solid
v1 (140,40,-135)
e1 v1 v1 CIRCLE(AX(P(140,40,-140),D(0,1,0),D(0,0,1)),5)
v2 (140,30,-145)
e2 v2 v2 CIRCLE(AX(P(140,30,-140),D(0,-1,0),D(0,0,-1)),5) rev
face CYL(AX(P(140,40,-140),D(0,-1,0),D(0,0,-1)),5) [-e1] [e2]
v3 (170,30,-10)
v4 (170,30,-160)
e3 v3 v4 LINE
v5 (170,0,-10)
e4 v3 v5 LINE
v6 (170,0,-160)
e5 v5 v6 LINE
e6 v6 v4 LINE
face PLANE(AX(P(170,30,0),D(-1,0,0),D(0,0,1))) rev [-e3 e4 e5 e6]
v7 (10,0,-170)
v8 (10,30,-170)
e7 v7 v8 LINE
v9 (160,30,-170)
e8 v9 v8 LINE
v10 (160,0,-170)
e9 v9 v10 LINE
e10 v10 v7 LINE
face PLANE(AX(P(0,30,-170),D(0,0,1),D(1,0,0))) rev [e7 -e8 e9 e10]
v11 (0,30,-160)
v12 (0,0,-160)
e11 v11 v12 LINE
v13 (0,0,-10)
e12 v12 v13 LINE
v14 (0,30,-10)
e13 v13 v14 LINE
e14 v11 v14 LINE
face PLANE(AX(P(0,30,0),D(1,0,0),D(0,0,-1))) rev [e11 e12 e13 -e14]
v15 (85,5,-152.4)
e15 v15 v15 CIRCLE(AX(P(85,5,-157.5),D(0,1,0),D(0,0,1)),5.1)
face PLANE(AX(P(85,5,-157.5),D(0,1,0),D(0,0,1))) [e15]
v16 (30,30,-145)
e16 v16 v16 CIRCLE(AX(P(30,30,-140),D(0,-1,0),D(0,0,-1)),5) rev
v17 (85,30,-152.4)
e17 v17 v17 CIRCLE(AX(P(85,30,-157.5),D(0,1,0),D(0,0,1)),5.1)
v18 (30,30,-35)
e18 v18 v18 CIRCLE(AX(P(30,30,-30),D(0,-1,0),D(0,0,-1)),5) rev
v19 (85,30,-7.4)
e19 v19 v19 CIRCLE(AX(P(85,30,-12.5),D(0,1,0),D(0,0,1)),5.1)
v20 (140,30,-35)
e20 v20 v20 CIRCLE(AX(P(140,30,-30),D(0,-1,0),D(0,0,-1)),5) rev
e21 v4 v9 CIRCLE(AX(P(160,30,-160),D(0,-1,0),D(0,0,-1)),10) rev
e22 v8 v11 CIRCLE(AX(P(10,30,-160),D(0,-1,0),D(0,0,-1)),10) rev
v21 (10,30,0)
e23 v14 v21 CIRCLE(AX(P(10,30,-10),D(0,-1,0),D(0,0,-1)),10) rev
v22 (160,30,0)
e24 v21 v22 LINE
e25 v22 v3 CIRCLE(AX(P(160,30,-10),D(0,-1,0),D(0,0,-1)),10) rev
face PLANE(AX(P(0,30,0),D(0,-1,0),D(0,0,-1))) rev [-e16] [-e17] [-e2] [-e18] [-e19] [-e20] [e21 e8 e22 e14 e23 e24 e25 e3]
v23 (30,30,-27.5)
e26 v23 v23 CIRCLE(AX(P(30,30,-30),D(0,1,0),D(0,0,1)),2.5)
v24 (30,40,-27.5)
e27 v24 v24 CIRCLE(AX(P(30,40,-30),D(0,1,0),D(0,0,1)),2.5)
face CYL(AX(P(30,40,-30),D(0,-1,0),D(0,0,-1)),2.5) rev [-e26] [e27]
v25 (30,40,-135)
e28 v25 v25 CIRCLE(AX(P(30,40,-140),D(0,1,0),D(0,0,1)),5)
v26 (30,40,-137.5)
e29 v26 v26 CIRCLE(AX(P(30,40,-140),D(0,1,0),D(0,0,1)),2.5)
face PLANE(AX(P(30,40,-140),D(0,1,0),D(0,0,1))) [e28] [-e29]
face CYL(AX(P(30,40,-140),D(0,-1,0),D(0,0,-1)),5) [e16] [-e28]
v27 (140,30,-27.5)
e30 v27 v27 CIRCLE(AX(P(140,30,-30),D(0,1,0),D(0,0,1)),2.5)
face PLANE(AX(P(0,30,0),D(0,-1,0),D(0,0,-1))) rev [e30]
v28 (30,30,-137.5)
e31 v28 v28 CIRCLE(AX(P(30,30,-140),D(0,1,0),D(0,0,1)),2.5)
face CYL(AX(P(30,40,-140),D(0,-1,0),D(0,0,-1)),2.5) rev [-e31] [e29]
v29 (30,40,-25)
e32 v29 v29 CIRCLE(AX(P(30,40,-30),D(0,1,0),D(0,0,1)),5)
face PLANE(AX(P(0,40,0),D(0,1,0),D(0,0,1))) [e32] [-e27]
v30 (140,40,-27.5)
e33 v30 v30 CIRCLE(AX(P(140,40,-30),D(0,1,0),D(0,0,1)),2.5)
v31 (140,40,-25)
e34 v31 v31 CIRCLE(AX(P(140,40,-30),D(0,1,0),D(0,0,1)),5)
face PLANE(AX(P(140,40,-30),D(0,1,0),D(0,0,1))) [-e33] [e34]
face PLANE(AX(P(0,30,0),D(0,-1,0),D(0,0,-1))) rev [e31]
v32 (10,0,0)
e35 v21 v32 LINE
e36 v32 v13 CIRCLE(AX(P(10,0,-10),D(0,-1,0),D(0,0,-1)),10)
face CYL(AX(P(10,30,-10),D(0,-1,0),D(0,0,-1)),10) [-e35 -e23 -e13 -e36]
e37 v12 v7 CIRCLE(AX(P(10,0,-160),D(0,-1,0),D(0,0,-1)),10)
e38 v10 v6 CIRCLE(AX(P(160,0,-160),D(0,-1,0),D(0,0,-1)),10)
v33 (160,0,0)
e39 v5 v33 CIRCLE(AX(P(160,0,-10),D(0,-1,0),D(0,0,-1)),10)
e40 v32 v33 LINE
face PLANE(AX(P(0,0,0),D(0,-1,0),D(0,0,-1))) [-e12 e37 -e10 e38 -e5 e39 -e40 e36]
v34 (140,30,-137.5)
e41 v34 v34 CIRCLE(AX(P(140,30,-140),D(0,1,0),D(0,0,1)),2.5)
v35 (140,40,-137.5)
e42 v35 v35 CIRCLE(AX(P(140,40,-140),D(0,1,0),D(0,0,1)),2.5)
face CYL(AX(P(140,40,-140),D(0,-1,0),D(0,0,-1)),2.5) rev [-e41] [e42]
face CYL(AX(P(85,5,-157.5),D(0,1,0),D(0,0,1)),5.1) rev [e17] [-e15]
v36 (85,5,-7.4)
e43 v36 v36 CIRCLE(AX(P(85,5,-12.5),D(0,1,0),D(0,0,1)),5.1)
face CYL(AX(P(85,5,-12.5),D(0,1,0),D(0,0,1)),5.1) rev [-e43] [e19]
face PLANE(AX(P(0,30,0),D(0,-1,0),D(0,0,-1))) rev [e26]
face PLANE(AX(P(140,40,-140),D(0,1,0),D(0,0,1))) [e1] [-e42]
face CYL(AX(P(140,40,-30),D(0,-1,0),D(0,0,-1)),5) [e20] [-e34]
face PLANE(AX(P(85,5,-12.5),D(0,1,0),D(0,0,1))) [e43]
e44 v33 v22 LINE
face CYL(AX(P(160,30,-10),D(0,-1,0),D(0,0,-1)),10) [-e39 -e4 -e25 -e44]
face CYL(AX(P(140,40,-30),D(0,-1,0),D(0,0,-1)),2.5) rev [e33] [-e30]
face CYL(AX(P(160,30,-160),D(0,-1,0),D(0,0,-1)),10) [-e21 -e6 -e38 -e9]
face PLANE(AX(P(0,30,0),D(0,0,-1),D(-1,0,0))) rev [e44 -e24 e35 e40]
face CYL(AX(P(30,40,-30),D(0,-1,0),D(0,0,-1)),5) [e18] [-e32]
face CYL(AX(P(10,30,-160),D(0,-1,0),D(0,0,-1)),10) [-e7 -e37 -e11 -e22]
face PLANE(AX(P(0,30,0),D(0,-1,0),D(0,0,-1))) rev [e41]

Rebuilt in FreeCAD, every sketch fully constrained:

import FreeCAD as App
import Part
import Sketcher

V = App.Vector
Q = App.Units.Quantity


def edges_at(feature, points):
    """Names of the edges that pass closest to the given points."""
    edges = feature.Shape.Edges
    near = lambda p: min(range(len(edges)), key=lambda i: edges[i].distToShape(Part.Vertex(*p))[0])
    return sorted({f"Edge{near(p) + 1}" for p in points})

doc = App.newDocument("Part")
body = doc.addObject("PartDesign::Body", "Body")

sketch1 = body.newObject("Sketcher::SketchObject", "Sketch")
sketch1.AttachmentSupport = (doc.getObject("XZ_Plane"), [""])
sketch1.MapMode = "FlatFace"
sketch1.addGeometry(Part.LineSegment(V(0, -170, 0), V(0, 0, 0)), False)
sketch1.addGeometry(Part.LineSegment(V(0, 0, 0), V(170, 0, 0)), False)
sketch1.addGeometry(Part.LineSegment(V(170, 0, 0), V(170, -170, 0)), False)
sketch1.addGeometry(Part.LineSegment(V(170, -170, 0), V(0, -170, 0)), False)
sketch1.addConstraint(Sketcher.Constraint("Coincident", 0, 2, 1, 1))
sketch1.addConstraint(Sketcher.Constraint("Coincident", 1, 2, 2, 1))
sketch1.addConstraint(Sketcher.Constraint("Coincident", 2, 2, 3, 1))
sketch1.addConstraint(Sketcher.Constraint("Coincident", 3, 2, 0, 1))
sketch1.addConstraint(Sketcher.Constraint("Vertical", 0))
sketch1.addConstraint(Sketcher.Constraint("Horizontal", 1))
sketch1.addConstraint(Sketcher.Constraint("Vertical", 2))
sketch1.addConstraint(Sketcher.Constraint("Horizontal", 3))
sketch1.addConstraint(Sketcher.Constraint("Coincident", 0, 2, -1, 1))
sketch1.addConstraint(Sketcher.Constraint("Equal", 3, 0))
sketch1.addConstraint(Sketcher.Constraint("DistanceX", 1, 1, 1, 2, Q("170 mm")))
pad1 = body.newObject("PartDesign::Pad", "Pad")
pad1.Profile = sketch1
pad1.Length = 30
pad1.Reversed = True

sketch2 = body.newObject("Sketcher::SketchObject", "Sketch001")
sketch2.AttachmentSupport = (doc.getObject("XZ_Plane"), [""])
sketch2.MapMode = "FlatFace"
sketch2.AttachmentOffset = App.Placement(V(0, 0, -30), App.Rotation())
sketch2.addGeometry(Part.Circle(V(85, -12, 0), V(0, 0, 1), 5), False)
sketch2.addGeometry(Part.Circle(V(85, -158, 0), V(0, 0, 1), 5), False)
sketch2.addConstraint(Sketcher.Constraint("Equal", 0, 1))
sketch2.addConstraint(Sketcher.Constraint("Vertical", 0, 3, 1, 3))
sketch2.addConstraint(Sketcher.Constraint("Diameter", 0, Q("10.2 mm")))
sketch2.addConstraint(Sketcher.Constraint("DistanceX", -1, 1, 0, 3, Q("85 mm")))
sketch2.addConstraint(Sketcher.Constraint("DistanceY", 1, 3, 0, 3, Q("145 mm")))
sketch2.addConstraint(Sketcher.Constraint("DistanceY", 0, 3, -1, 1, Q("12.5 mm")))
pocket1 = body.newObject("PartDesign::Pocket", "Pocket")
pocket1.Profile = sketch2
pocket1.Length = 25
pocket1.Reversed = True

sketch3 = body.newObject("Sketcher::SketchObject", "Sketch002")
sketch3.AttachmentSupport = (doc.getObject("XZ_Plane"), [""])
sketch3.MapMode = "FlatFace"
sketch3.AttachmentOffset = App.Placement(V(0, 0, -30), App.Rotation())
sketch3.addGeometry(Part.Circle(V(30, -30, 0), V(0, 0, 1), 5), False)
sketch3.addGeometry(Part.Circle(V(30, -30, 0), V(0, 0, 1), 2.5), False)
sketch3.addGeometry(Part.Circle(V(140, -30, 0), V(0, 0, 1), 5), False)
sketch3.addGeometry(Part.Circle(V(140, -30, 0), V(0, 0, 1), 2.5), False)
sketch3.addGeometry(Part.Circle(V(30, -140, 0), V(0, 0, 1), 5), False)
sketch3.addGeometry(Part.Circle(V(30, -140, 0), V(0, 0, 1), 2.5), False)
sketch3.addGeometry(Part.Circle(V(140, -140, 0), V(0, 0, 1), 5), False)
sketch3.addGeometry(Part.Circle(V(140, -140, 0), V(0, 0, 1), 2.5), False)
sketch3.addConstraint(Sketcher.Constraint("Coincident", 1, 3, 0, 3))
sketch3.addConstraint(Sketcher.Constraint("Coincident", 3, 3, 2, 3))
sketch3.addConstraint(Sketcher.Constraint("Coincident", 5, 3, 4, 3))
sketch3.addConstraint(Sketcher.Constraint("Coincident", 7, 3, 6, 3))
sketch3.addConstraint(Sketcher.Constraint("Equal", 0, 2))
sketch3.addConstraint(Sketcher.Constraint("Equal", 1, 3))
sketch3.addConstraint(Sketcher.Constraint("Equal", 2, 4))
sketch3.addConstraint(Sketcher.Constraint("Equal", 3, 5))
sketch3.addConstraint(Sketcher.Constraint("Equal", 4, 6))
sketch3.addConstraint(Sketcher.Constraint("Equal", 5, 7))
sketch3.addConstraint(Sketcher.Constraint("Horizontal", 1, 3, 2, 3))
sketch3.addConstraint(Sketcher.Constraint("Horizontal", 5, 3, 6, 3))
sketch3.addConstraint(Sketcher.Constraint("Vertical", 1, 3, 4, 3))
sketch3.addConstraint(Sketcher.Constraint("Vertical", 3, 3, 6, 3))
sketch3.addConstraint(Sketcher.Constraint("Diameter", 0, Q("10 mm")))
sketch3.addConstraint(Sketcher.Constraint("Diameter", 1, Q("5 mm")))
sketch3.addConstraint(Sketcher.Constraint("DistanceX", -1, 1, 0, 3, Q("30 mm")))
sketch3.addConstraint(Sketcher.Constraint("DistanceY", 0, 3, -1, 1, Q("30 mm")))
sketch3.addConstraint(Sketcher.Constraint("DistanceX", -1, 1, 2, 3, Q("140 mm")))
sketch3.addConstraint(Sketcher.Constraint("DistanceY", 4, 3, -1, 1, Q("140 mm")))
pad2 = body.newObject("PartDesign::Pad", "Pad001")
pad2.Profile = sketch3
pad2.Length = 10
pad2.Reversed = True
doc.recompute()

fillet = body.newObject("PartDesign::Fillet", "Fillet")
fillet.Base = (pad2, edges_at(pad2, [
    (0, 15, -170),
    (170, 15, -170),
    (170, 15, 0),
    (0, 15, 0),
]))
fillet.Radius = 10

doc.recompute()
